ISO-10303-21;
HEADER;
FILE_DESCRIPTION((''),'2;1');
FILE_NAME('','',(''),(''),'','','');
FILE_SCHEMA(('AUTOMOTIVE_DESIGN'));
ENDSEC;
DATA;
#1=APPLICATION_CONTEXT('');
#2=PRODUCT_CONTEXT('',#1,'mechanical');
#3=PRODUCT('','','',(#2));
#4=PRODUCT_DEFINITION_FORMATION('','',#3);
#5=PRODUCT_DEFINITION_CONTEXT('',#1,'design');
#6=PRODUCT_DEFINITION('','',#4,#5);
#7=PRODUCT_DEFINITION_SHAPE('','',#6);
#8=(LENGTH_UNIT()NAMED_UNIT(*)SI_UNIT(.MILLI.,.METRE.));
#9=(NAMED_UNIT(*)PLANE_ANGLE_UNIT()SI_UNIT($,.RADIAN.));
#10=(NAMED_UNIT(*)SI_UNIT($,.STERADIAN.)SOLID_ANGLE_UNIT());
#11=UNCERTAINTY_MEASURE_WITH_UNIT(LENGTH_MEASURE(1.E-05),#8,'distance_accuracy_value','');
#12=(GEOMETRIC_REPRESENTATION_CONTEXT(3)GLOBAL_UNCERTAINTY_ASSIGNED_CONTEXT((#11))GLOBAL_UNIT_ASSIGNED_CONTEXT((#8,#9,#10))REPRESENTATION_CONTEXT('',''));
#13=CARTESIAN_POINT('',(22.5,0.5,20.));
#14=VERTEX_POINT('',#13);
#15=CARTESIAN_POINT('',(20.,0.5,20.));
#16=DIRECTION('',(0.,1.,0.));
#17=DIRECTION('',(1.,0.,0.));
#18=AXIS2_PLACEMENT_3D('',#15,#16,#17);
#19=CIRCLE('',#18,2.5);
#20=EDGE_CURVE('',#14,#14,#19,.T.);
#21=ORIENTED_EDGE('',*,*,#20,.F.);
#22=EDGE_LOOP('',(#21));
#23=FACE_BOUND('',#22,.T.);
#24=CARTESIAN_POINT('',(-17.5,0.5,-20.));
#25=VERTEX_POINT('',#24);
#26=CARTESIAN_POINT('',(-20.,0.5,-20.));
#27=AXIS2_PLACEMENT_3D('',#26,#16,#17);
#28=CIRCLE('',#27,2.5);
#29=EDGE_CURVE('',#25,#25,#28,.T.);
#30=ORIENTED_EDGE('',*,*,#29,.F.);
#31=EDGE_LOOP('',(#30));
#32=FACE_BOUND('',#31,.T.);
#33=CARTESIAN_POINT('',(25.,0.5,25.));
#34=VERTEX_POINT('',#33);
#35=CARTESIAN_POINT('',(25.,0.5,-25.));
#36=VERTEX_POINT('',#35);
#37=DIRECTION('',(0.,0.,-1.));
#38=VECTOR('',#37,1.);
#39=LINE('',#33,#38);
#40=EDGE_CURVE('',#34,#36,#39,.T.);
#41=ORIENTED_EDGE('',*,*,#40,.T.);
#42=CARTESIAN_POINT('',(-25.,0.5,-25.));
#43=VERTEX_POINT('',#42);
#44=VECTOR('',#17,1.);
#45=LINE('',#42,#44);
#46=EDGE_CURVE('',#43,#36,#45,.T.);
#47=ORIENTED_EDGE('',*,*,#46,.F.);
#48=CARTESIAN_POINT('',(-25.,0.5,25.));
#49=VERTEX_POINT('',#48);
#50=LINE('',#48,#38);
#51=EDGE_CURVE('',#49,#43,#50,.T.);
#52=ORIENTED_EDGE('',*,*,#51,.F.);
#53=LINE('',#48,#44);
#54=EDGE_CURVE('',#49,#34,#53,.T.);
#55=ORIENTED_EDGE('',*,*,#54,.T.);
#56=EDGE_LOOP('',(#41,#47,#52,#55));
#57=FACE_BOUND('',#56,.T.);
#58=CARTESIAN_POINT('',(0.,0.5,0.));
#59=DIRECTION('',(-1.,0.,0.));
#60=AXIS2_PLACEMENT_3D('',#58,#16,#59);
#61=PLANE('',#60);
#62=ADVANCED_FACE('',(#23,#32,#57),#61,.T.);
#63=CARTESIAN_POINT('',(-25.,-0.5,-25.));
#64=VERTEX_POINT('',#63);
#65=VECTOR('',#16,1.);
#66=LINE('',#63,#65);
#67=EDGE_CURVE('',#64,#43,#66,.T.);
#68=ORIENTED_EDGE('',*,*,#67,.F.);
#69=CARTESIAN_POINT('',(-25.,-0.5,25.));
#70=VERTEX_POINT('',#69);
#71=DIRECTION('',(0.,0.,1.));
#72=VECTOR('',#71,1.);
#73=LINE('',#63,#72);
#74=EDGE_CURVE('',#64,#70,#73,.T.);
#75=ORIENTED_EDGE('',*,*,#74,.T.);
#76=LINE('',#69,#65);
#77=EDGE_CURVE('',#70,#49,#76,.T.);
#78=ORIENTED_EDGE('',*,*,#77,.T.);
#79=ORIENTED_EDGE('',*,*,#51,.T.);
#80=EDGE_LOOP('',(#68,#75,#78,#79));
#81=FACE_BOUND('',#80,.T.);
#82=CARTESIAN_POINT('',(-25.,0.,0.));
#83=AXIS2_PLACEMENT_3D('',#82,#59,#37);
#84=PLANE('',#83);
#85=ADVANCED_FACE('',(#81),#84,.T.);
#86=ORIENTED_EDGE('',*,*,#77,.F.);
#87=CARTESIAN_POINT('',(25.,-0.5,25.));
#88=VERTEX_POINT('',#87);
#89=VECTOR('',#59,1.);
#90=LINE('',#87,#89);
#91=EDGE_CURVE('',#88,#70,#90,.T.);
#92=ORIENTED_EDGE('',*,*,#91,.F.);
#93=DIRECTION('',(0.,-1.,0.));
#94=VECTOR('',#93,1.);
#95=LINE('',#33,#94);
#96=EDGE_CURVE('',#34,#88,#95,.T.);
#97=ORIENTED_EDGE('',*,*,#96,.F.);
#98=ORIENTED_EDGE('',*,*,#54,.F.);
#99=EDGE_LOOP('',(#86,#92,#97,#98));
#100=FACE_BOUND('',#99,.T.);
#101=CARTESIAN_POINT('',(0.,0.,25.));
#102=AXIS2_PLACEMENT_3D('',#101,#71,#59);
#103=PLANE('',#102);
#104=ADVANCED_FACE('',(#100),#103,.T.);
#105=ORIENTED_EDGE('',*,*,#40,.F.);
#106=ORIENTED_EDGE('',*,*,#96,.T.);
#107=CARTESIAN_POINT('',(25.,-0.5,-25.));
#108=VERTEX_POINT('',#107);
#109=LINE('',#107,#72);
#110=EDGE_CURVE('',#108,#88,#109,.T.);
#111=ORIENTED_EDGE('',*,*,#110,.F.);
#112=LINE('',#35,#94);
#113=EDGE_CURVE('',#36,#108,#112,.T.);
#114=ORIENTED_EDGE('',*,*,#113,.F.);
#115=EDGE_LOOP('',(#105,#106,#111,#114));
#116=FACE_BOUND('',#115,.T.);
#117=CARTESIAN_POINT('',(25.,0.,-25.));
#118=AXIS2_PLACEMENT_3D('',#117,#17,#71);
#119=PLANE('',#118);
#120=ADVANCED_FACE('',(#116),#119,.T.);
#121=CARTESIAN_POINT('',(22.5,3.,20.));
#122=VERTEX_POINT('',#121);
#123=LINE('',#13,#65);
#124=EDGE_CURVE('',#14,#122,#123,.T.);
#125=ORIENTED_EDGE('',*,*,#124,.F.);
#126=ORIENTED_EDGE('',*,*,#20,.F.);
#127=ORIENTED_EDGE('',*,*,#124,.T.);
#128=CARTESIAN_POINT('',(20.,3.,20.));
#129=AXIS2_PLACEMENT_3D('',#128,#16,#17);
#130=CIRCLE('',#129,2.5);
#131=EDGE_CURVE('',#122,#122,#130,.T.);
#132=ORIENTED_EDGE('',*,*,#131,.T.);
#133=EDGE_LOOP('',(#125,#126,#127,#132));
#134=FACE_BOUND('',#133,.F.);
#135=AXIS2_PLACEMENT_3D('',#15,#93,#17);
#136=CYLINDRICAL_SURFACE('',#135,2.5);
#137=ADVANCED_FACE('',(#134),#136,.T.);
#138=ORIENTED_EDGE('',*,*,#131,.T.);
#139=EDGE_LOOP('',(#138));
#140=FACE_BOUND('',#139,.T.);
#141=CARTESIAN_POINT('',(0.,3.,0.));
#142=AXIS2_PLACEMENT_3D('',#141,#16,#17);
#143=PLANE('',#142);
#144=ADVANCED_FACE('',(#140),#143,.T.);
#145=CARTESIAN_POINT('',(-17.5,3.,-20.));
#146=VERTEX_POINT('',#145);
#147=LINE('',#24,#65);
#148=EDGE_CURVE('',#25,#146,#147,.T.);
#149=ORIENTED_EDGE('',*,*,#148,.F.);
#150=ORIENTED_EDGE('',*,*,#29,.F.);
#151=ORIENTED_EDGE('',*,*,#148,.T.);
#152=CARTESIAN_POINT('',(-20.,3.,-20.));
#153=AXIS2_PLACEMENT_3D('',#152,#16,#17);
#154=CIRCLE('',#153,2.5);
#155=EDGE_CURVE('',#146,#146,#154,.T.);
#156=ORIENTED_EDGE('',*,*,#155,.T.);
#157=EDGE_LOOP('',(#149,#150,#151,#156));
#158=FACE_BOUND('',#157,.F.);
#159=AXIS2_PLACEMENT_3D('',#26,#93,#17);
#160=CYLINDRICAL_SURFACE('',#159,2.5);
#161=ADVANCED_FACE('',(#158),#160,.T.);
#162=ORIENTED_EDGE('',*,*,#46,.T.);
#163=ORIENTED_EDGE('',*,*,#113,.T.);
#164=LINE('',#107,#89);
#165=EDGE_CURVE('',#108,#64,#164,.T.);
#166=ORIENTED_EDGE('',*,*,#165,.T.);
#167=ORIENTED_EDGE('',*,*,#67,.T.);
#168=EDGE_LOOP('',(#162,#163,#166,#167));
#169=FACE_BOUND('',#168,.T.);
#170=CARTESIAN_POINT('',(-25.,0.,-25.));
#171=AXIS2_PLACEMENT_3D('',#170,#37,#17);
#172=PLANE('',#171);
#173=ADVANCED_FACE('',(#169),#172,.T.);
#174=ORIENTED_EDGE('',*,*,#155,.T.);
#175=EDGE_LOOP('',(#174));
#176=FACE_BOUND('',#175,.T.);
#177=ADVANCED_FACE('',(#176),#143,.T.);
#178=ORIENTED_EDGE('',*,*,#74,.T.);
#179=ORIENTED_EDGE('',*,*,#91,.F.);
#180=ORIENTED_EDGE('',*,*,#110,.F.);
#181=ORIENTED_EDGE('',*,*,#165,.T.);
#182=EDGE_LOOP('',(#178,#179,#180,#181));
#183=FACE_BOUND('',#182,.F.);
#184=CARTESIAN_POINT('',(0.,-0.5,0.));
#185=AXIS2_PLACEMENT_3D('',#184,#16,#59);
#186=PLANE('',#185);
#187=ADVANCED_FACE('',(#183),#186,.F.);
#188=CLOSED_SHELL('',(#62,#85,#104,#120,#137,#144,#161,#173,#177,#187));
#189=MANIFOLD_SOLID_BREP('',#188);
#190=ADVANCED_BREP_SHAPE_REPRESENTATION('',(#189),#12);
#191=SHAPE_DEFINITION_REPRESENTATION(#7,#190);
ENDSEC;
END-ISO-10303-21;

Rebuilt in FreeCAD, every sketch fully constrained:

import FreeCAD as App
import Part
import Sketcher
from FreeCAD import Vector
Q = App.Units.Quantity

doc = App.newDocument("Part")
params = doc.addObject("Spreadsheet::Sheet", "Params")
for row, (alias, value) in enumerate([
    ("sketch1_width", "50 mm"),
    ("pad1_length", "1 mm"),
    ("sketch2_diameter", "5 mm"),
    ("pad2_length", "2.5 mm"),
], start=1):
    params.set(f"A{row}", alias)
    params.set(f"B{row}", "=" + value)
    params.setAlias(f"B{row}", alias)

body = doc.addObject("PartDesign::Body", "Body")

sketch1 = doc.addObject("Sketcher::SketchObject", "Sketch")
body.addObject(sketch1)
sketch1.AttachmentSupport = (doc.XZ_Plane, [""])
sketch1.MapMode = "FlatFace"
sketch1.addGeometry(Part.LineSegment(Vector(-25, -25, 0), Vector(-25, 25, 0)), False)
sketch1.addGeometry(Part.LineSegment(Vector(-25, 25, 0), Vector(25, 25, 0)), False)
sketch1.addGeometry(Part.LineSegment(Vector(25, 25, 0), Vector(25, -25, 0)), False)
sketch1.addGeometry(Part.LineSegment(Vector(25, -25, 0), Vector(-25, -25, 0)), False)
sketch1.addConstraint(Sketcher.Constraint("Coincident", 0, 2, 1, 1))
sketch1.addConstraint(Sketcher.Constraint("Coincident", 1, 2, 2, 1))
sketch1.addConstraint(Sketcher.Constraint("Coincident", 2, 2, 3, 1))
sketch1.addConstraint(Sketcher.Constraint("Coincident", 3, 2, 0, 1))
sketch1.addConstraint(Sketcher.Constraint("Vertical", 0))
sketch1.addConstraint(Sketcher.Constraint("Horizontal", 1))
sketch1.addConstraint(Sketcher.Constraint("Vertical", 2))
sketch1.addConstraint(Sketcher.Constraint("Horizontal", 3))
sketch1.addConstraint(Sketcher.Constraint("Symmetric", 0, 2, 2, 2, -1, 1))
sketch1.addConstraint(Sketcher.Constraint("Equal", 3, 0))
sketch1.addConstraint(Sketcher.Constraint("DistanceX", 1, 1, 1, 2, Q("50 mm")))
sketch1.setExpression("Constraints[10]", "Params.sketch1_width")
pad1 = doc.addObject("PartDesign::Pad", "Pad")
body.addObject(pad1)
pad1.Profile = sketch1
pad1.setExpression("Length", "Params.pad1_length")
pad1.Midplane = True

sketch2 = doc.addObject("Sketcher::SketchObject", "Sketch001")
body.addObject(sketch2)
sketch2.AttachmentSupport = (doc.XZ_Plane, [""])
sketch2.MapMode = "FlatFace"
sketch2.AttachmentOffset = App.Placement(Vector(0, 0, -0.5), App.Rotation())
sketch2.addGeometry(Part.Circle(Vector(-20, -20, 0), Vector(0, 0, 1), 2.5), False)
sketch2.addGeometry(Part.Circle(Vector(20, 20, 0), Vector(0, 0, 1), 2.5), False)
sketch2.addConstraint(Sketcher.Constraint("Equal", 0, 1))
sketch2.addConstraint(Sketcher.Constraint("Symmetric", 0, 3, 1, 3, -1, 1))
sketch2.addConstraint(Sketcher.Constraint("Diameter", 0, Q("5 mm")))
sketch2.addConstraint(Sketcher.Constraint("DistanceX", 0, 3, -1, 1, Q("20 mm")))
sketch2.addConstraint(Sketcher.Constraint("DistanceY", 0, 3, -1, 1, Q("20 mm")))
sketch2.setExpression("Constraints[2]", "Params.sketch2_diameter")
pad2 = doc.addObject("PartDesign::Pad", "Pad001")
body.addObject(pad2)
pad2.Profile = sketch2
pad2.setExpression("Length", "Params.pad2_length")
pad2.Reversed = True

doc.recompute()
